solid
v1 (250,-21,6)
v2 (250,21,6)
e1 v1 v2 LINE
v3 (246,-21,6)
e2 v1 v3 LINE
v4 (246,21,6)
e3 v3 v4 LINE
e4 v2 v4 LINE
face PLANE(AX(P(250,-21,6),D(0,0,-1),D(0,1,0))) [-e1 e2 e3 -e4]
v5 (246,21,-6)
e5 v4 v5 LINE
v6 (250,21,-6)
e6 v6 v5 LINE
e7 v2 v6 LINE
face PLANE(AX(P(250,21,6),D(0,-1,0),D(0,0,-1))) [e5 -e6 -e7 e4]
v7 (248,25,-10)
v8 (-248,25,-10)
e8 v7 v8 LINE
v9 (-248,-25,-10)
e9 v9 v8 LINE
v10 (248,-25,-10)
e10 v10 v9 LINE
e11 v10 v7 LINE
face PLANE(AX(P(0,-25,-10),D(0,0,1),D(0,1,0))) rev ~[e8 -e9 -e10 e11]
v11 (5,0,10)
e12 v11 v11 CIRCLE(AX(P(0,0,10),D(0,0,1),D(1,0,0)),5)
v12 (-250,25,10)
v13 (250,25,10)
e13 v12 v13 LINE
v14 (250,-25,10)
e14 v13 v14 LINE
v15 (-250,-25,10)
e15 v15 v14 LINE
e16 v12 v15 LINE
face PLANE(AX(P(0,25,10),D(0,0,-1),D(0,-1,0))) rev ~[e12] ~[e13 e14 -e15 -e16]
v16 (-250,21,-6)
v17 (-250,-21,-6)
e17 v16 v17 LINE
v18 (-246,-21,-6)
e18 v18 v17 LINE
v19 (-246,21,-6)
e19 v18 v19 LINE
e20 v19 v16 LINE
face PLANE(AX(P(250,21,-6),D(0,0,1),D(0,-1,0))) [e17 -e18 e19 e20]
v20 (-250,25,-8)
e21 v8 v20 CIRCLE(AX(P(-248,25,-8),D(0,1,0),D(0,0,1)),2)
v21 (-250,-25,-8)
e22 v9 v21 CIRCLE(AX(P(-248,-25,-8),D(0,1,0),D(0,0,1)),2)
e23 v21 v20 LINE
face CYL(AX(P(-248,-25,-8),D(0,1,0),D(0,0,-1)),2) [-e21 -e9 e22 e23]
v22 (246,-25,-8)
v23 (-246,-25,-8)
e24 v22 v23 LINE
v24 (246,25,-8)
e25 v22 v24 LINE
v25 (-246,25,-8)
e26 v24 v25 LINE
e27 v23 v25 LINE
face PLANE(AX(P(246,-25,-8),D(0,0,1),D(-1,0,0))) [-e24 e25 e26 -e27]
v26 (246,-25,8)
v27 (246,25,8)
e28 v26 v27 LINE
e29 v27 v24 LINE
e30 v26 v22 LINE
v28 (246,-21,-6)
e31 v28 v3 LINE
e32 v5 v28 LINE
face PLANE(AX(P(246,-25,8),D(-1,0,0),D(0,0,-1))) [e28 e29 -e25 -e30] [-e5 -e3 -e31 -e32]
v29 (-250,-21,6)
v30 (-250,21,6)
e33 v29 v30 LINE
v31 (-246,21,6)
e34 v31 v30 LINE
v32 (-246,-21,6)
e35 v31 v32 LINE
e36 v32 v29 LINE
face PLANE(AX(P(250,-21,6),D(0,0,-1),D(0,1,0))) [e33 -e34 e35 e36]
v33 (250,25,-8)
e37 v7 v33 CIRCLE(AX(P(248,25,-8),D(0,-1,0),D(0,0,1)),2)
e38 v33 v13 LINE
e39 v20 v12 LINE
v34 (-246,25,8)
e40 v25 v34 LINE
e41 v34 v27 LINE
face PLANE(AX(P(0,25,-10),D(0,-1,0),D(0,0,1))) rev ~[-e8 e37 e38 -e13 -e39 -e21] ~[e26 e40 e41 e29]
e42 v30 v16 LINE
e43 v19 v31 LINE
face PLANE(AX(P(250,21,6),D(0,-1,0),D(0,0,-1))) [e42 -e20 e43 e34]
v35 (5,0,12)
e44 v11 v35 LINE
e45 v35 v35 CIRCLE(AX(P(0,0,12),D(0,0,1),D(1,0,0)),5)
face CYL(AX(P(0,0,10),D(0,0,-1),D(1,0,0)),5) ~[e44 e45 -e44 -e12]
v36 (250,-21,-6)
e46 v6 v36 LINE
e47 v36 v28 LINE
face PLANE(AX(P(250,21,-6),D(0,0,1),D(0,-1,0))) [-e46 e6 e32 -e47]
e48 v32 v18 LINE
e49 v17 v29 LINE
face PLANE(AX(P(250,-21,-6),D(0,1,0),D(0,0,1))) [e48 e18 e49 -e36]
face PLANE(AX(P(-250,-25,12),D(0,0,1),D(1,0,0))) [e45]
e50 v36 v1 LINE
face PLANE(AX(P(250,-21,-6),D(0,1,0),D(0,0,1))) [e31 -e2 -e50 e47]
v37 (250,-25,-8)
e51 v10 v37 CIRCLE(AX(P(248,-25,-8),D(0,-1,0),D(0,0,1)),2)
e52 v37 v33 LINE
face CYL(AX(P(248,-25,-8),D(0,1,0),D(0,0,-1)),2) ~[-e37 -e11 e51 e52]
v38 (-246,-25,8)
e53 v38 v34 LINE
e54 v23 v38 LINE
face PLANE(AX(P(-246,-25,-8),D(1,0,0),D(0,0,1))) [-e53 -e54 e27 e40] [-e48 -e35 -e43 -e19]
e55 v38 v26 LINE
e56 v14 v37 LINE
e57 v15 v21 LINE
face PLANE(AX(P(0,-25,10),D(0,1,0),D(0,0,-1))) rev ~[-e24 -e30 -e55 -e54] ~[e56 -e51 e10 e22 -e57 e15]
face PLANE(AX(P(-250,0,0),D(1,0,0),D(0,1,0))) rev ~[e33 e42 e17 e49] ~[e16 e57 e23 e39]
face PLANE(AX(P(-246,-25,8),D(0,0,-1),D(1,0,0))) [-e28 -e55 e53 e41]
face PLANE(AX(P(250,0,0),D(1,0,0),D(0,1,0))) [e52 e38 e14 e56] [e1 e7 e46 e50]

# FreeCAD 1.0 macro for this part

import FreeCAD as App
import Part
import Sketcher
from FreeCAD import Vector
Q = App.Units.Quantity


def edges_at(feature, points):
    """Names of the edges that pass closest to the given points."""
    edges = feature.Shape.Edges
    near = lambda p: min(range(len(edges)), key=lambda i: edges[i].distToShape(Part.Vertex(*p))[0])
    return sorted({f"Edge{near(p) + 1}" for p in points})

doc = App.newDocument("Part")
body = doc.addObject("PartDesign::Body", "Body")

# Sketch on YZ plane
sketch1 = doc.addObject("Sketcher::SketchObject", "Sketch")
body.addObject(sketch1)
sketch1.AttachmentSupport = (doc.YZ_Plane, [""])
sketch1.MapMode = "FlatFace"
sketch1.addGeometry([
    Part.LineSegment(Vector(25, -10, 0), Vector(25, 10, 0)),
    Part.LineSegment(Vector(25, 10, 0), Vector(-25, 10, 0)),
    Part.LineSegment(Vector(-25, 10, 0), Vector(-25, -10, 0)),
    Part.LineSegment(Vector(-25, -10, 0), Vector(25, -10, 0)),
], False)
sketch1.addConstraint([
    Sketcher.Constraint("Coincident", 0, 2, 1, 1),
    Sketcher.Constraint("Coincident", 1, 2, 2, 1),
    Sketcher.Constraint("Coincident", 2, 2, 3, 1),
    Sketcher.Constraint("Coincident", 3, 2, 0, 1),
    Sketcher.Constraint("Vertical", 0),
    Sketcher.Constraint("Horizontal", 1),
    Sketcher.Constraint("Vertical", 2),
    Sketcher.Constraint("Horizontal", 3),
    Sketcher.Constraint("Symmetric", 0, 2, 2, 2, -1, 1),
    Sketcher.Constraint("DistanceX", 1, 2, 1, 1, Q("50 mm")),
    Sketcher.Constraint("DistanceY", 0, 1, 0, 2, Q("20 mm")),
])
pad1 = doc.addObject("PartDesign::Pad", "Pad")
body.addObject(pad1)
pad1.Profile = sketch1
pad1.Length = 500
pad1.Midplane = True

# Sketch on XY plane
sketch2 = doc.addObject("Sketcher::SketchObject", "Sketch001")
body.addObject(sketch2)
sketch2.AttachmentSupport = (doc.XY_Plane, [""])
sketch2.MapMode = "FlatFace"
sketch2.AttachmentOffset = App.Placement(Vector(0, 0, 10), App.Rotation())
sketch2.addGeometry(Part.Circle(Vector(0, 0, 0), Vector(0, 0, 1), 5), False)
sketch2.addConstraint([
    Sketcher.Constraint("Coincident", 0, 3, -1, 1),
    Sketcher.Constraint("Diameter", 0, Q("10 mm")),
])
pad2 = doc.addObject("PartDesign::Pad", "Pad001")
body.addObject(pad2)
pad2.Profile = sketch2
pad2.Length = 2
doc.recompute()

fillet = doc.addObject("PartDesign::Fillet", "Fillet")
body.addObject(fillet)
fillet.Base = (pad2, edges_at(pad2, [(250, 0, -10), (-250, 0, -10)]))
fillet.Radius = 2

# Sketch on YZ plane
sketch3 = doc.addObject("Sketcher::SketchObject", "Sketch002")
body.addObject(sketch3)
sketch3.AttachmentSupport = (doc.YZ_Plane, [""])
sketch3.MapMode = "FlatFace"
sketch3.AttachmentOffset = App.Placement(Vector(0, 0, 250), App.Rotation())
sketch3.addGeometry([
    Part.LineSegment(Vector(21, -6, 0), Vector(21, 6, 0)),
    Part.LineSegment(Vector(21, 6, 0), Vector(-21, 6, 0)),
    Part.LineSegment(Vector(-21, 6, 0), Vector(-21, -6, 0)),
    Part.LineSegment(Vector(-21, -6, 0), Vector(21, -6, 0)),
], False)
sketch3.addConstraint([
    Sketcher.Constraint("Coincident", 0, 2, 1, 1),
    Sketcher.Constraint("Coincident", 1, 2, 2, 1),
    Sketcher.Constraint("Coincident", 2, 2, 3, 1),
    Sketcher.Constraint("Coincident", 3, 2, 0, 1),
    Sketcher.Constraint("Vertical", 0),
    Sketcher.Constraint("Horizontal", 1),
    Sketcher.Constraint("Vertical", 2),
    Sketcher.Constraint("Horizontal", 3),
    Sketcher.Constraint("Symmetric", 0, 2, 2, 2, -1, 1),
    Sketcher.Constraint("DistanceX", 1, 2, 1, 1, Q("42 mm")),
    Sketcher.Constraint("DistanceY", 0, 1, 0, 2, Q("12 mm")),
])
pocket1 = doc.addObject("PartDesign::Pocket", "Pocket")
body.addObject(pocket1)
pocket1.Profile = sketch3
pocket1.Type = "ThroughAll"

# Sketch on XZ plane
sketch4 = doc.addObject("Sketcher::SketchObject", "Sketch003")
body.addObject(sketch4)
sketch4.AttachmentSupport = (doc.XZ_Plane, [""])
sketch4.MapMode = "FlatFace"
sketch4.AttachmentOffset = App.Placement(Vector(0, 0, 25), App.Rotation())
sketch4.addGeometry([
    Part.LineSegment(Vector(246, 8, 0), Vector(-246, 8, 0)),
    Part.LineSegment(Vector(-246, 8, 0), Vector(-246, -8, 0)),
    Part.LineSegment(Vector(-246, -8, 0), Vector(246, -8, 0)),
    Part.LineSegment(Vector(246, -8, 0), Vector(246, 8, 0)),
], False)
sketch4.addConstraint([
    Sketcher.Constraint("Coincident", 0, 2, 1, 1),
    Sketcher.Constraint("Coincident", 1, 2, 2, 1),
    Sketcher.Constraint("Coincident", 2, 2, 3, 1),
    Sketcher.Constraint("Coincident", 3, 2, 0, 1),
    Sketcher.Constraint("Horizontal", 0),
    Sketcher.Constraint("Vertical", 1),
    Sketcher.Constraint("Horizontal", 2),
    Sketcher.Constraint("Vertical", 3),
    Sketcher.Constraint("Symmetric", 0, 2, 2, 2, -1, 1),
    Sketcher.Constraint("DistanceX", 0, 2, 0, 1, Q("492 mm")),
    Sketcher.Constraint("DistanceY", 1, 2, 1, 1, Q("16 mm")),
])
pocket2 = doc.addObject("PartDesign::Pocket", "Pocket001")
body.addObject(pocket2)
pocket2.Profile = sketch4
pocket2.Type = "ThroughAll"

doc.recompute()
